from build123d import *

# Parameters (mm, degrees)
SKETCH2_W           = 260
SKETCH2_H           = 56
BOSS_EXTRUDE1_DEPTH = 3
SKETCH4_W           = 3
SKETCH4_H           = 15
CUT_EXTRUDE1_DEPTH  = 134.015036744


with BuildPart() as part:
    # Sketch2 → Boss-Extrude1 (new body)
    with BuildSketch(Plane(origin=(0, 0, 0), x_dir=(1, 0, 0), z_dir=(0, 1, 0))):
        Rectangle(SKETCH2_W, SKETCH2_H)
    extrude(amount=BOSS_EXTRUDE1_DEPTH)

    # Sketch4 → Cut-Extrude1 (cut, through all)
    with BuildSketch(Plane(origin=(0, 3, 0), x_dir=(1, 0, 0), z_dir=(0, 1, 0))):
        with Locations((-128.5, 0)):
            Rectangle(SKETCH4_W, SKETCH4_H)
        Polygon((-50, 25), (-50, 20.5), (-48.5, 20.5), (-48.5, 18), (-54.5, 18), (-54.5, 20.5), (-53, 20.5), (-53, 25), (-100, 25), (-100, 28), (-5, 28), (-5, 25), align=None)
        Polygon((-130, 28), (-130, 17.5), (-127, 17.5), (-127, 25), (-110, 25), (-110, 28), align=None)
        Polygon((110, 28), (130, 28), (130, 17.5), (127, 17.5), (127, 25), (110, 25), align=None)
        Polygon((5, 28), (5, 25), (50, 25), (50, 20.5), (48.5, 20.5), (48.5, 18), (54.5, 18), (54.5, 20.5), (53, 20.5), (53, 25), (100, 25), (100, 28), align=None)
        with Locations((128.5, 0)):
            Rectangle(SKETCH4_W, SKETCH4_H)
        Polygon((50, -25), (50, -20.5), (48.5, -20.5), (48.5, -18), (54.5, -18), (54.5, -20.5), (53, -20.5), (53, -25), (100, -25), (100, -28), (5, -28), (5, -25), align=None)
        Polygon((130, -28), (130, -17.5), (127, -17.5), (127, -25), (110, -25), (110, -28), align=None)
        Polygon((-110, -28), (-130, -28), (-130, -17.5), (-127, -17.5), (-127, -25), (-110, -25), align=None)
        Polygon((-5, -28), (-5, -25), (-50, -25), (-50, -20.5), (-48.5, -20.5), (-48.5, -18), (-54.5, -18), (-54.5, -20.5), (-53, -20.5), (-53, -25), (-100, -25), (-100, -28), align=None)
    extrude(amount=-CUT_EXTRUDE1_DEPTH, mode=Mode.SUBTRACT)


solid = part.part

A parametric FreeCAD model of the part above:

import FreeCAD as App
import Part
import Sketcher
Q = App.Units.Quantity

doc = App.newDocument("Part")
body = doc.addObject("PartDesign::Body", "Body")

sketch1 = doc.addObject("Sketcher::SketchObject", "Sketch")
body.addObject(sketch1)
sketch1.AttachmentSupport = (doc.XZ_Plane, [""])
sketch1.MapMode = "FlatFace"
sketch1.addGeometry([
    Part.LineSegment(App.Vector(-130, -28, 0), App.Vector(-130, 28, 0)),
    Part.LineSegment(App.Vector(-130, 28, 0), App.Vector(130, 28, 0)),
    Part.LineSegment(App.Vector(130, 28, 0), App.Vector(130, -28, 0)),
    Part.LineSegment(App.Vector(130, -28, 0), App.Vector(-130, -28, 0)),
], False)
sketch1.addConstraint([
    Sketcher.Constraint("Coincident", 0, 2, 1, 1),
    Sketcher.Constraint("Coincident", 1, 2, 2, 1),
    Sketcher.Constraint("Coincident", 2, 2, 3, 1),
    Sketcher.Constraint("Coincident", 3, 2, 0, 1),
    Sketcher.Constraint("Vertical", 0),
    Sketcher.Constraint("Horizontal", 1),
    Sketcher.Constraint("Vertical", 2),
    Sketcher.Constraint("Horizontal", 3),
    Sketcher.Constraint("Symmetric", 0, 2, 2, 2, -1, 1),
    Sketcher.Constraint("DistanceX", 1, 1, 1, 2, Q("260 mm")),
    Sketcher.Constraint("DistanceY", 0, 1, 0, 2, Q("56 mm")),
])
pad1 = doc.addObject("PartDesign::Pad", "Pad")
body.addObject(pad1)
pad1.Profile = sketch1
pad1.Length = 3
pad1.Reversed = True

sketch2 = doc.addObject("Sketcher::SketchObject", "Sketch001")
body.addObject(sketch2)
sketch2.AttachmentSupport = (doc.XZ_Plane, [""])
sketch2.MapMode = "FlatFace"
sketch2.AttachmentOffset = App.Placement(App.Vector(0, 0, -3), App.Rotation())
sketch2.addGeometry([
    Part.LineSegment(App.Vector(-130, -7.5, 0), App.Vector(-130, 7.5, 0)),
    Part.LineSegment(App.Vector(-130, 7.5, 0), App.Vector(-127, 7.5, 0)),
    Part.LineSegment(App.Vector(-127, 7.5, 0), App.Vector(-127, -7.5, 0)),
    Part.LineSegment(App.Vector(-127, -7.5, 0), App.Vector(-130, -7.5, 0)),
    Part.LineSegment(App.Vector(-50, -20.5, 0), App.Vector(-50, -25, 0)),
    Part.LineSegment(App.Vector(-50, -25, 0), App.Vector(-5, -25, 0)),
    Part.LineSegment(App.Vector(-5, -25, 0), App.Vector(-5, -28, 0)),
    Part.LineSegment(App.Vector(-5, -28, 0), App.Vector(-100, -28, 0)),
    Part.LineSegment(App.Vector(-100, -28, 0), App.Vector(-100, -25, 0)),
    Part.LineSegment(App.Vector(-100, -25, 0), App.Vector(-53, -25, 0)),
    Part.LineSegment(App.Vector(-53, -25, 0), App.Vector(-53, -20.5, 0)),
    Part.LineSegment(App.Vector(-53, -20.5, 0), App.Vector(-54.5, -20.5, 0)),
    Part.LineSegment(App.Vector(-54.5, -20.5, 0), App.Vector(-54.5, -18, 0)),
    Part.LineSegment(App.Vector(-54.5, -18, 0), App.Vector(-48.5, -18, 0)),
    Part.LineSegment(App.Vector(-48.5, -18, 0), App.Vector(-48.5, -20.5, 0)),
    Part.LineSegment(App.Vector(-48.5, -20.5, 0), App.Vector(-50, -20.5, 0)),
    Part.LineSegment(App.Vector(-130, -28, 0), App.Vector(-130, -17.5, 0)),
    Part.LineSegment(App.Vector(-130, -17.5, 0), App.Vector(-127, -17.5, 0)),
    Part.LineSegment(App.Vector(-127, -17.5, 0), App.Vector(-127, -25, 0)),
    Part.LineSegment(App.Vector(-127, -25, 0), App.Vector(-110, -25, 0)),
    Part.LineSegment(App.Vector(-110, -25, 0), App.Vector(-110, -28, 0)),
    Part.LineSegment(App.Vector(-110, -28, 0), App.Vector(-130, -28, 0)),
    Part.LineSegment(App.Vector(130, -28, 0), App.Vector(110, -28, 0)),
    Part.LineSegment(App.Vector(110, -28, 0), App.Vector(110, -25, 0)),
    Part.LineSegment(App.Vector(110, -25, 0), App.Vector(127, -25, 0)),
    Part.LineSegment(App.Vector(127, -25, 0), App.Vector(127, -17.5, 0)),
    Part.LineSegment(App.Vector(127, -17.5, 0), App.Vector(130, -17.5, 0)),
    Part.LineSegment(App.Vector(130, -17.5, 0), App.Vector(130, -28, 0)),
    Part.LineSegment(App.Vector(5, -28, 0), App.Vector(5, -25, 0)),
    Part.LineSegment(App.Vector(5, -25, 0), App.Vector(50, -25, 0)),
    Part.LineSegment(App.Vector(50, -25, 0), App.Vector(50, -20.5, 0)),
    Part.LineSegment(App.Vector(50, -20.5, 0), App.Vector(48.5, -20.5, 0)),
    Part.LineSegment(App.Vector(48.5, -20.5, 0), App.Vector(48.5, -18, 0)),
    Part.LineSegment(App.Vector(48.5, -18, 0), App.Vector(54.5, -18, 0)),
    Part.LineSegment(App.Vector(54.5, -18, 0), App.Vector(54.5, -20.5, 0)),
    Part.LineSegment(App.Vector(54.5, -20.5, 0), App.Vector(53, -20.5, 0)),
    Part.LineSegment(App.Vector(53, -20.5, 0), App.Vector(53, -25, 0)),
    Part.LineSegment(App.Vector(53, -25, 0), App.Vector(100, -25, 0)),
    Part.LineSegment(App.Vector(100, -25, 0), App.Vector(100, -28, 0)),
    Part.LineSegment(App.Vector(100, -28, 0), App.Vector(5, -28, 0)),
    Part.LineSegment(App.Vector(127, -7.5, 0), App.Vector(127, 7.5, 0)),
    Part.LineSegment(App.Vector(127, 7.5, 0), App.Vector(130, 7.5, 0)),
    Part.LineSegment(App.Vector(130, 7.5, 0), App.Vector(130, -7.5, 0)),
    Part.LineSegment(App.Vector(130, -7.5, 0), App.Vector(127, -7.5, 0)),
    Part.LineSegment(App.Vector(50, 20.5, 0), App.Vector(50, 25, 0)),
    Part.LineSegment(App.Vector(50, 25, 0), App.Vector(5, 25, 0)),
    Part.LineSegment(App.Vector(5, 25, 0), App.Vector(5, 28, 0)),
    Part.LineSegment(App.Vector(5, 28, 0), App.Vector(100, 28, 0)),
    Part.LineSegment(App.Vector(100, 28, 0), App.Vector(100, 25, 0)),
    Part.LineSegment(App.Vector(100, 25, 0), App.Vector(53, 25, 0)),
    Part.LineSegment(App.Vector(53, 25, 0), App.Vector(53, 20.5, 0)),
    Part.LineSegment(App.Vector(53, 20.5, 0), App.Vector(54.5, 20.5, 0)),
    Part.LineSegment(App.Vector(54.5, 20.5, 0), App.Vector(54.5, 18, 0)),
    Part.LineSegment(App.Vector(54.5, 18, 0), App.Vector(48.5, 18, 0)),
    Part.LineSegment(App.Vector(48.5, 18, 0), App.Vector(48.5, 20.5, 0)),
    Part.LineSegment(App.Vector(48.5, 20.5, 0), App.Vector(50, 20.5, 0)),
    Part.LineSegment(App.Vector(130, 28, 0), App.Vector(130, 17.5, 0)),
    Part.LineSegment(App.Vector(130, 17.5, 0), App.Vector(127, 17.5, 0)),
    Part.LineSegment(App.Vector(127, 17.5, 0), App.Vector(127, 25, 0)),
    Part.LineSegment(App.Vector(127, 25, 0), App.Vector(110, 25, 0)),
    Part.LineSegment(App.Vector(110, 25, 0), App.Vector(110, 28, 0)),
    Part.LineSegment(App.Vector(110, 28, 0), App.Vector(130, 28, 0)),
    Part.LineSegment(App.Vector(-130, 28, 0), App.Vector(-110, 28, 0)),
    Part.LineSegment(App.Vector(-110, 28, 0), App.Vector(-110, 25, 0)),
    Part.LineSegment(App.Vector(-110, 25, 0), App.Vector(-127, 25, 0)),
    Part.LineSegment(App.Vector(-127, 25, 0), App.Vector(-127, 17.5, 0)),
    Part.LineSegment(App.Vector(-127, 17.5, 0), App.Vector(-130, 17.5, 0)),
    Part.LineSegment(App.Vector(-130, 17.5, 0), App.Vector(-130, 28, 0)),
    Part.LineSegment(App.Vector(-5, 28, 0), App.Vector(-5, 25, 0)),
    Part.LineSegment(App.Vector(-5, 25, 0), App.Vector(-50, 25, 0)),
    Part.LineSegment(App.Vector(-50, 25, 0), App.Vector(-50, 20.5, 0)),
    Part.LineSegment(App.Vector(-50, 20.5, 0), App.Vector(-48.5, 20.5, 0)),
    Part.LineSegment(App.Vector(-48.5, 20.5, 0), App.Vector(-48.5, 18, 0)),
    Part.LineSegment(App.Vector(-48.5, 18, 0), App.Vector(-54.5, 18, 0)),
    Part.LineSegment(App.Vector(-54.5, 18, 0), App.Vector(-54.5, 20.5, 0)),
    Part.LineSegment(App.Vector(-54.5, 20.5, 0), App.Vector(-53, 20.5, 0)),
    Part.LineSegment(App.Vector(-53, 20.5, 0), App.Vector(-53, 25, 0)),
    Part.LineSegment(App.Vector(-53, 25, 0), App.Vector(-100, 25, 0)),
    Part.LineSegment(App.Vector(-100, 25, 0), App.Vector(-100, 28, 0)),
    Part.LineSegment(App.Vector(-100, 28, 0), App.Vector(-5, 28, 0)),
], False)
sketch2.addConstraint([
    Sketcher.Constraint("Coincident", 0, 2, 1, 1),
    Sketcher.Constraint("Coincident", 1, 2, 2, 1),
    Sketcher.Constraint("Coincident", 2, 2, 3, 1),
    Sketcher.Constraint("Coincident", 3, 2, 0, 1),
    Sketcher.Constraint("Coincident", 4, 2, 5, 1),
    Sketcher.Constraint("Coincident", 5, 2, 6, 1),
    Sketcher.Constraint("Coincident", 6, 2, 7, 1),
    Sketcher.Constraint("Coincident", 7, 2, 8, 1),
    Sketcher.Constraint("Coincident", 8, 2, 9, 1),
    Sketcher.Constraint("Coincident", 9, 2, 10, 1),
    Sketcher.Constraint("Coincident", 10, 2, 11, 1),
    Sketcher.Constraint("Coincident", 11, 2, 12, 1),
    Sketcher.Constraint("Coincident", 12, 2, 13, 1),
    Sketcher.Constraint("Coincident", 13, 2, 14, 1),
    Sketcher.Constraint("Coincident", 14, 2, 15, 1),
    Sketcher.Constraint("Coincident", 15, 2, 4, 1),
    Sketcher.Constraint("Coincident", 16, 2, 17, 1),
    Sketcher.Constraint("Coincident", 17, 2, 18, 1),
    Sketcher.Constraint("Coincident", 18, 2, 19, 1),
    Sketcher.Constraint("Coincident", 19, 2, 20, 1),
    Sketcher.Constraint("Coincident", 20, 2, 21, 1),
    Sketcher.Constraint("Coincident", 21, 2, 16, 1),
    Sketcher.Constraint("Coincident", 22, 2, 23, 1),
    Sketcher.Constraint("Coincident", 23, 2, 24, 1),
    Sketcher.Constraint("Coincident", 24, 2, 25, 1),
    Sketcher.Constraint("Coincident", 25, 2, 26, 1),
    Sketcher.Constraint("Coincident", 26, 2, 27, 1),
    Sketcher.Constraint("Coincident", 27, 2, 22, 1),
    Sketcher.Constraint("Coincident", 28, 2, 29, 1),
    Sketcher.Constraint("Coincident", 29, 2, 30, 1),
    Sketcher.Constraint("Coincident", 30, 2, 31, 1),
    Sketcher.Constraint("Coincident", 31, 2, 32, 1),
    Sketcher.Constraint("Coincident", 32, 2, 33, 1),
    Sketcher.Constraint("Coincident", 33, 2, 34, 1),
    Sketcher.Constraint("Coincident", 34, 2, 35, 1),
    Sketcher.Constraint("Coincident", 35, 2, 36, 1),
    Sketcher.Constraint("Coincident", 36, 2, 37, 1),
    Sketcher.Constraint("Coincident", 37, 2, 38, 1),
    Sketcher.Constraint("Coincident", 38, 2, 39, 1),
    Sketcher.Constraint("Coincident", 39, 2, 28, 1),
    Sketcher.Constraint("Coincident", 40, 2, 41, 1),
    Sketcher.Constraint("Coincident", 41, 2, 42, 1),
    Sketcher.Constraint("Coincident", 42, 2, 43, 1),
    Sketcher.Constraint("Coincident", 43, 2, 40, 1),
    Sketcher.Constraint("Coincident", 44, 2, 45, 1),
    Sketcher.Constraint("Coincident", 45, 2, 46, 1),
    Sketcher.Constraint("Coincident", 46, 2, 47, 1),
    Sketcher.Constraint("Coincident", 47, 2, 48, 1),
    Sketcher.Constraint("Coincident", 48, 2, 49, 1),
    Sketcher.Constraint("Coincident", 49, 2, 50, 1),
    Sketcher.Constraint("Coincident", 50, 2, 51, 1),
    Sketcher.Constraint("Coincident", 51, 2, 52, 1),
    Sketcher.Constraint("Coincident", 52, 2, 53, 1),
    Sketcher.Constraint("Coincident", 53, 2, 54, 1),
    Sketcher.Constraint("Coincident", 54, 2, 55, 1),
    Sketcher.Constraint("Coincident", 55, 2, 44, 1),
    Sketcher.Constraint("Coincident", 56, 2, 57, 1),
    Sketcher.Constraint("Coincident", 57, 2, 58, 1),
    Sketcher.Constraint("Coincident", 58, 2, 59, 1),
    Sketcher.Constraint("Coincident", 59, 2, 60, 1),
    Sketcher.Constraint("Coincident", 60, 2, 61, 1),
    Sketcher.Constraint("Coincident", 61, 2, 56, 1),
    Sketcher.Constraint("Coincident", 62, 2, 63, 1),
    Sketcher.Constraint("Coincident", 63, 2, 64, 1),
    Sketcher.Constraint("Coincident", 64, 2, 65, 1),
    Sketcher.Constraint("Coincident", 65, 2, 66, 1),
    Sketcher.Constraint("Coincident", 66, 2, 67, 1),
    Sketcher.Constraint("Coincident", 67, 2, 62, 1),
    Sketcher.Constraint("Coincident", 68, 2, 69, 1),
    Sketcher.Constraint("Coincident", 69, 2, 70, 1),
    Sketcher.Constraint("Coincident", 70, 2, 71, 1),
    Sketcher.Constraint("Coincident", 71, 2, 72, 1),
    Sketcher.Constraint("Coincident", 72, 2, 73, 1),
    Sketcher.Constraint("Coincident", 73, 2, 74, 1),
    Sketcher.Constraint("Coincident", 74, 2, 75, 1),
    Sketcher.Constraint("Coincident", 75, 2, 76, 1),
    Sketcher.Constraint("Coincident", 76, 2, 77, 1),
    Sketcher.Constraint("Coincident", 77, 2, 78, 1),
    Sketcher.Constraint("Coincident", 78, 2, 79, 1),
    Sketcher.Constraint("Coincident", 79, 2, 68, 1),
    Sketcher.Constraint("Vertical", 0),
    Sketcher.Constraint("Horizontal", 1),
    Sketcher.Constraint("Vertical", 2),
    Sketcher.Constraint("Horizontal", 3),
    Sketcher.Constraint("Vertical", 4),
    Sketcher.Constraint("Horizontal", 5),
    Sketcher.Constraint("Vertical", 6),
    Sketcher.Constraint("Horizontal", 7),
    Sketcher.Constraint("Vertical", 8),
    Sketcher.Constraint("Horizontal", 9),
    Sketcher.Constraint("Vertical", 10),
    Sketcher.Constraint("Horizontal", 11),
    Sketcher.Constraint("Vertical", 12),
    Sketcher.Constraint("Horizontal", 13),
    Sketcher.Constraint("Vertical", 14),
    Sketcher.Constraint("Horizontal", 15),
    Sketcher.Constraint("Vertical", 16),
    Sketcher.Constraint("Horizontal", 17),
    Sketcher.Constraint("Vertical", 18),
    Sketcher.Constraint("Horizontal", 19),
    Sketcher.Constraint("Vertical", 20),
    Sketcher.Constraint("Horizontal", 21),
    Sketcher.Constraint("Horizontal", 22),
    Sketcher.Constraint("Vertical", 23),
    Sketcher.Constraint("Horizontal", 24),
    Sketcher.Constraint("Vertical", 25),
    Sketcher.Constraint("Horizontal", 26),
    Sketcher.Constraint("Vertical", 27),
    Sketcher.Constraint("Vertical", 28),
    Sketcher.Constraint("Horizontal", 29),
    Sketcher.Constraint("Vertical", 30),
    Sketcher.Constraint("Horizontal", 31),
    Sketcher.Constraint("Vertical", 32),
    Sketcher.Constraint("Horizontal", 33),
    Sketcher.Constraint("Vertical", 34),
    Sketcher.Constraint("Horizontal", 35),
    Sketcher.Constraint("Vertical", 36),
    Sketcher.Constraint("Horizontal", 37),
    Sketcher.Constraint("Vertical", 38),
    Sketcher.Constraint("Horizontal", 39),
    Sketcher.Constraint("Vertical", 40),
    Sketcher.Constraint("Horizontal", 41),
    Sketcher.Constraint("Vertical", 42),
    Sketcher.Constraint("Horizontal", 43),
    Sketcher.Constraint("Vertical", 44),
    Sketcher.Constraint("Horizontal", 45),
    Sketcher.Constraint("Vertical", 46),
    Sketcher.Constraint("Horizontal", 47),
    Sketcher.Constraint("Vertical", 48),
    Sketcher.Constraint("Horizontal", 49),
    Sketcher.Constraint("Vertical", 50),
    Sketcher.Constraint("Horizontal", 51),
    Sketcher.Constraint("Vertical", 52),
    Sketcher.Constraint("Horizontal", 53),
    Sketcher.Constraint("Vertical", 54),
    Sketcher.Constraint("Horizontal", 55),
    Sketcher.Constraint("Vertical", 56),
    Sketcher.Constraint("Horizontal", 57),
    Sketcher.Constraint("Vertical", 58),
    Sketcher.Constraint("Horizontal", 59),
    Sketcher.Constraint("Vertical", 60),
    Sketcher.Constraint("Horizontal", 61),
    Sketcher.Constraint("Horizontal", 62),
    Sketcher.Constraint("Vertical", 63),
    Sketcher.Constraint("Horizontal", 64),
    Sketcher.Constraint("Vertical", 65),
    Sketcher.Constraint("Horizontal", 66),
    Sketcher.Constraint("Vertical", 67),
    Sketcher.Constraint("Vertical", 68),
    Sketcher.Constraint("Horizontal", 69),
    Sketcher.Constraint("Vertical", 70),
    Sketcher.Constraint("Horizontal", 71),
    Sketcher.Constraint("Vertical", 72),
    Sketcher.Constraint("Horizontal", 73),
    Sketcher.Constraint("Vertical", 74),
    Sketcher.Constraint("Horizontal", 75),
    Sketcher.Constraint("Vertical", 76),
    Sketcher.Constraint("Horizontal", 77),
    Sketcher.Constraint("Vertical", 78),
    Sketcher.Constraint("Horizontal", 79),
    Sketcher.Constraint("Symmetric", 2, 2, 40, 2, -1, 1),
    Sketcher.Constraint("Symmetric", 0, 2, 42, 2, -1, 1),
    Sketcher.Constraint("Symmetric", 4, 2, 44, 2, -1, 1),
    Sketcher.Constraint("Symmetric", 6, 2, 46, 2, -1, 1),
    Sketcher.Constraint("Symmetric", 8, 2, 48, 2, -1, 1),
    Sketcher.Constraint("Symmetric", 10, 2, 50, 2, -1, 1),
    Sketcher.Constraint("Symmetric", 12, 2, 52, 2, -1, 1),
    Sketcher.Constraint("Symmetric", 14, 2, 54, 2, -1, 1),
    Sketcher.Constraint("Symmetric", 16, 2, 56, 2, -1, 1),
    Sketcher.Constraint("Symmetric", 18, 2, 58, 2, -1, 1),
    Sketcher.Constraint("Symmetric", 20, 2, 60, 2, -1, 1),
    Sketcher.Constraint("Symmetric", 22, 2, 62, 2, -1, 1),
    Sketcher.Constraint("Symmetric", 24, 2, 64, 2, -1, 1),
    Sketcher.Constraint("Symmetric", 26, 2, 66, 2, -1, 1),
    Sketcher.Constraint("Symmetric", 28, 2, 68, 2, -1, 1),
    Sketcher.Constraint("Symmetric", 30, 2, 70, 2, -1, 1),
    Sketcher.Constraint("Symmetric", 32, 2, 72, 2, -1, 1),
    Sketcher.Constraint("Symmetric", 34, 2, 74, 2, -1, 1),
    Sketcher.Constraint("Symmetric", 36, 2, 76, 2, -1, 1),
    Sketcher.Constraint("Symmetric", 38, 2, 78, 2, -1, 1),
    Sketcher.Constraint("Symmetric", 20, 2, 22, 2, -2),
    Sketcher.Constraint("Symmetric", 18, 2, 24, 2, -2),
    Sketcher.Constraint("Symmetric", 16, 2, 26, 2, -2),
    Sketcher.Constraint("Symmetric", 5, 2, 28, 2, -2),
    Sketcher.Constraint("Symmetric", 15, 2, 30, 2, -2),
    Sketcher.Constraint("Symmetric", 13, 2, 32, 2, -2),
    Sketcher.Constraint("Symmetric", 11, 2, 34, 2, -2),
    Sketcher.Constraint("Symmetric", 9, 2, 36, 2, -2),
    Sketcher.Constraint("Symmetric", 7, 2, 38, 2, -2),
    Sketcher.Constraint("Horizontal", 5, 2, 8, 2),
    Sketcher.Constraint("Horizontal", 11, 2, 14, 2),
    Sketcher.Constraint("Horizontal", 9, 2, 18, 2),
    Sketcher.Constraint("Horizontal", 7, 2, 20, 2),
    Sketcher.Constraint("Horizontal", 1, 2, 40, 2),
    Sketcher.Constraint("Vertical", 3, 2, 16, 2),
    Sketcher.Constraint("Vertical", 2, 2, 17, 2),
    Sketcher.Constraint("Equal", 11, 15),
    Sketcher.Constraint("Equal", 66, 6),
    Sketcher.Constraint("DistanceX", 1, 1, 1, 2, Q("3 mm")),
    Sketcher.Constraint("DistanceX", 5, 1, 5, 2, Q("45 mm")),
    Sketcher.Constraint("DistanceX", 7, 2, 7, 1, Q("95 mm")),
    Sketcher.Constraint("DistanceX", 9, 1, 9, 2, Q("47 mm")),
    Sketcher.Constraint("DistanceX", 13, 1, 13, 2, Q("6 mm")),
    Sketcher.Constraint("DistanceX", 19, 1, 19, 2, Q("17 mm")),
    Sketcher.Constraint("DistanceY", 0, 1, 0, 2, Q("15 mm")),
    Sketcher.Constraint("DistanceY", 4, 2, 4, 1, Q("4.5 mm")),
    Sketcher.Constraint("DistanceY", 12, 1, 12, 2, Q("2.5 mm")),
    Sketcher.Constraint("DistanceY", 16, 1, 16, 2, Q("10.5 mm")),
    Sketcher.Constraint("DistanceX", 0, 2, -1, 1, Q("130 mm")),
    Sketcher.Constraint("DistanceX", 4, 2, -1, 1, Q("50 mm")),
    Sketcher.Constraint("DistanceY", 4, 2, -1, 1, Q("25 mm")),
])
pocket1 = doc.addObject("PartDesign::Pocket", "Pocket")
body.addObject(pocket1)
pocket1.Profile = sketch2
pocket1.Type = "ThroughAll"
pocket1.Reversed = True

doc.recompute()
